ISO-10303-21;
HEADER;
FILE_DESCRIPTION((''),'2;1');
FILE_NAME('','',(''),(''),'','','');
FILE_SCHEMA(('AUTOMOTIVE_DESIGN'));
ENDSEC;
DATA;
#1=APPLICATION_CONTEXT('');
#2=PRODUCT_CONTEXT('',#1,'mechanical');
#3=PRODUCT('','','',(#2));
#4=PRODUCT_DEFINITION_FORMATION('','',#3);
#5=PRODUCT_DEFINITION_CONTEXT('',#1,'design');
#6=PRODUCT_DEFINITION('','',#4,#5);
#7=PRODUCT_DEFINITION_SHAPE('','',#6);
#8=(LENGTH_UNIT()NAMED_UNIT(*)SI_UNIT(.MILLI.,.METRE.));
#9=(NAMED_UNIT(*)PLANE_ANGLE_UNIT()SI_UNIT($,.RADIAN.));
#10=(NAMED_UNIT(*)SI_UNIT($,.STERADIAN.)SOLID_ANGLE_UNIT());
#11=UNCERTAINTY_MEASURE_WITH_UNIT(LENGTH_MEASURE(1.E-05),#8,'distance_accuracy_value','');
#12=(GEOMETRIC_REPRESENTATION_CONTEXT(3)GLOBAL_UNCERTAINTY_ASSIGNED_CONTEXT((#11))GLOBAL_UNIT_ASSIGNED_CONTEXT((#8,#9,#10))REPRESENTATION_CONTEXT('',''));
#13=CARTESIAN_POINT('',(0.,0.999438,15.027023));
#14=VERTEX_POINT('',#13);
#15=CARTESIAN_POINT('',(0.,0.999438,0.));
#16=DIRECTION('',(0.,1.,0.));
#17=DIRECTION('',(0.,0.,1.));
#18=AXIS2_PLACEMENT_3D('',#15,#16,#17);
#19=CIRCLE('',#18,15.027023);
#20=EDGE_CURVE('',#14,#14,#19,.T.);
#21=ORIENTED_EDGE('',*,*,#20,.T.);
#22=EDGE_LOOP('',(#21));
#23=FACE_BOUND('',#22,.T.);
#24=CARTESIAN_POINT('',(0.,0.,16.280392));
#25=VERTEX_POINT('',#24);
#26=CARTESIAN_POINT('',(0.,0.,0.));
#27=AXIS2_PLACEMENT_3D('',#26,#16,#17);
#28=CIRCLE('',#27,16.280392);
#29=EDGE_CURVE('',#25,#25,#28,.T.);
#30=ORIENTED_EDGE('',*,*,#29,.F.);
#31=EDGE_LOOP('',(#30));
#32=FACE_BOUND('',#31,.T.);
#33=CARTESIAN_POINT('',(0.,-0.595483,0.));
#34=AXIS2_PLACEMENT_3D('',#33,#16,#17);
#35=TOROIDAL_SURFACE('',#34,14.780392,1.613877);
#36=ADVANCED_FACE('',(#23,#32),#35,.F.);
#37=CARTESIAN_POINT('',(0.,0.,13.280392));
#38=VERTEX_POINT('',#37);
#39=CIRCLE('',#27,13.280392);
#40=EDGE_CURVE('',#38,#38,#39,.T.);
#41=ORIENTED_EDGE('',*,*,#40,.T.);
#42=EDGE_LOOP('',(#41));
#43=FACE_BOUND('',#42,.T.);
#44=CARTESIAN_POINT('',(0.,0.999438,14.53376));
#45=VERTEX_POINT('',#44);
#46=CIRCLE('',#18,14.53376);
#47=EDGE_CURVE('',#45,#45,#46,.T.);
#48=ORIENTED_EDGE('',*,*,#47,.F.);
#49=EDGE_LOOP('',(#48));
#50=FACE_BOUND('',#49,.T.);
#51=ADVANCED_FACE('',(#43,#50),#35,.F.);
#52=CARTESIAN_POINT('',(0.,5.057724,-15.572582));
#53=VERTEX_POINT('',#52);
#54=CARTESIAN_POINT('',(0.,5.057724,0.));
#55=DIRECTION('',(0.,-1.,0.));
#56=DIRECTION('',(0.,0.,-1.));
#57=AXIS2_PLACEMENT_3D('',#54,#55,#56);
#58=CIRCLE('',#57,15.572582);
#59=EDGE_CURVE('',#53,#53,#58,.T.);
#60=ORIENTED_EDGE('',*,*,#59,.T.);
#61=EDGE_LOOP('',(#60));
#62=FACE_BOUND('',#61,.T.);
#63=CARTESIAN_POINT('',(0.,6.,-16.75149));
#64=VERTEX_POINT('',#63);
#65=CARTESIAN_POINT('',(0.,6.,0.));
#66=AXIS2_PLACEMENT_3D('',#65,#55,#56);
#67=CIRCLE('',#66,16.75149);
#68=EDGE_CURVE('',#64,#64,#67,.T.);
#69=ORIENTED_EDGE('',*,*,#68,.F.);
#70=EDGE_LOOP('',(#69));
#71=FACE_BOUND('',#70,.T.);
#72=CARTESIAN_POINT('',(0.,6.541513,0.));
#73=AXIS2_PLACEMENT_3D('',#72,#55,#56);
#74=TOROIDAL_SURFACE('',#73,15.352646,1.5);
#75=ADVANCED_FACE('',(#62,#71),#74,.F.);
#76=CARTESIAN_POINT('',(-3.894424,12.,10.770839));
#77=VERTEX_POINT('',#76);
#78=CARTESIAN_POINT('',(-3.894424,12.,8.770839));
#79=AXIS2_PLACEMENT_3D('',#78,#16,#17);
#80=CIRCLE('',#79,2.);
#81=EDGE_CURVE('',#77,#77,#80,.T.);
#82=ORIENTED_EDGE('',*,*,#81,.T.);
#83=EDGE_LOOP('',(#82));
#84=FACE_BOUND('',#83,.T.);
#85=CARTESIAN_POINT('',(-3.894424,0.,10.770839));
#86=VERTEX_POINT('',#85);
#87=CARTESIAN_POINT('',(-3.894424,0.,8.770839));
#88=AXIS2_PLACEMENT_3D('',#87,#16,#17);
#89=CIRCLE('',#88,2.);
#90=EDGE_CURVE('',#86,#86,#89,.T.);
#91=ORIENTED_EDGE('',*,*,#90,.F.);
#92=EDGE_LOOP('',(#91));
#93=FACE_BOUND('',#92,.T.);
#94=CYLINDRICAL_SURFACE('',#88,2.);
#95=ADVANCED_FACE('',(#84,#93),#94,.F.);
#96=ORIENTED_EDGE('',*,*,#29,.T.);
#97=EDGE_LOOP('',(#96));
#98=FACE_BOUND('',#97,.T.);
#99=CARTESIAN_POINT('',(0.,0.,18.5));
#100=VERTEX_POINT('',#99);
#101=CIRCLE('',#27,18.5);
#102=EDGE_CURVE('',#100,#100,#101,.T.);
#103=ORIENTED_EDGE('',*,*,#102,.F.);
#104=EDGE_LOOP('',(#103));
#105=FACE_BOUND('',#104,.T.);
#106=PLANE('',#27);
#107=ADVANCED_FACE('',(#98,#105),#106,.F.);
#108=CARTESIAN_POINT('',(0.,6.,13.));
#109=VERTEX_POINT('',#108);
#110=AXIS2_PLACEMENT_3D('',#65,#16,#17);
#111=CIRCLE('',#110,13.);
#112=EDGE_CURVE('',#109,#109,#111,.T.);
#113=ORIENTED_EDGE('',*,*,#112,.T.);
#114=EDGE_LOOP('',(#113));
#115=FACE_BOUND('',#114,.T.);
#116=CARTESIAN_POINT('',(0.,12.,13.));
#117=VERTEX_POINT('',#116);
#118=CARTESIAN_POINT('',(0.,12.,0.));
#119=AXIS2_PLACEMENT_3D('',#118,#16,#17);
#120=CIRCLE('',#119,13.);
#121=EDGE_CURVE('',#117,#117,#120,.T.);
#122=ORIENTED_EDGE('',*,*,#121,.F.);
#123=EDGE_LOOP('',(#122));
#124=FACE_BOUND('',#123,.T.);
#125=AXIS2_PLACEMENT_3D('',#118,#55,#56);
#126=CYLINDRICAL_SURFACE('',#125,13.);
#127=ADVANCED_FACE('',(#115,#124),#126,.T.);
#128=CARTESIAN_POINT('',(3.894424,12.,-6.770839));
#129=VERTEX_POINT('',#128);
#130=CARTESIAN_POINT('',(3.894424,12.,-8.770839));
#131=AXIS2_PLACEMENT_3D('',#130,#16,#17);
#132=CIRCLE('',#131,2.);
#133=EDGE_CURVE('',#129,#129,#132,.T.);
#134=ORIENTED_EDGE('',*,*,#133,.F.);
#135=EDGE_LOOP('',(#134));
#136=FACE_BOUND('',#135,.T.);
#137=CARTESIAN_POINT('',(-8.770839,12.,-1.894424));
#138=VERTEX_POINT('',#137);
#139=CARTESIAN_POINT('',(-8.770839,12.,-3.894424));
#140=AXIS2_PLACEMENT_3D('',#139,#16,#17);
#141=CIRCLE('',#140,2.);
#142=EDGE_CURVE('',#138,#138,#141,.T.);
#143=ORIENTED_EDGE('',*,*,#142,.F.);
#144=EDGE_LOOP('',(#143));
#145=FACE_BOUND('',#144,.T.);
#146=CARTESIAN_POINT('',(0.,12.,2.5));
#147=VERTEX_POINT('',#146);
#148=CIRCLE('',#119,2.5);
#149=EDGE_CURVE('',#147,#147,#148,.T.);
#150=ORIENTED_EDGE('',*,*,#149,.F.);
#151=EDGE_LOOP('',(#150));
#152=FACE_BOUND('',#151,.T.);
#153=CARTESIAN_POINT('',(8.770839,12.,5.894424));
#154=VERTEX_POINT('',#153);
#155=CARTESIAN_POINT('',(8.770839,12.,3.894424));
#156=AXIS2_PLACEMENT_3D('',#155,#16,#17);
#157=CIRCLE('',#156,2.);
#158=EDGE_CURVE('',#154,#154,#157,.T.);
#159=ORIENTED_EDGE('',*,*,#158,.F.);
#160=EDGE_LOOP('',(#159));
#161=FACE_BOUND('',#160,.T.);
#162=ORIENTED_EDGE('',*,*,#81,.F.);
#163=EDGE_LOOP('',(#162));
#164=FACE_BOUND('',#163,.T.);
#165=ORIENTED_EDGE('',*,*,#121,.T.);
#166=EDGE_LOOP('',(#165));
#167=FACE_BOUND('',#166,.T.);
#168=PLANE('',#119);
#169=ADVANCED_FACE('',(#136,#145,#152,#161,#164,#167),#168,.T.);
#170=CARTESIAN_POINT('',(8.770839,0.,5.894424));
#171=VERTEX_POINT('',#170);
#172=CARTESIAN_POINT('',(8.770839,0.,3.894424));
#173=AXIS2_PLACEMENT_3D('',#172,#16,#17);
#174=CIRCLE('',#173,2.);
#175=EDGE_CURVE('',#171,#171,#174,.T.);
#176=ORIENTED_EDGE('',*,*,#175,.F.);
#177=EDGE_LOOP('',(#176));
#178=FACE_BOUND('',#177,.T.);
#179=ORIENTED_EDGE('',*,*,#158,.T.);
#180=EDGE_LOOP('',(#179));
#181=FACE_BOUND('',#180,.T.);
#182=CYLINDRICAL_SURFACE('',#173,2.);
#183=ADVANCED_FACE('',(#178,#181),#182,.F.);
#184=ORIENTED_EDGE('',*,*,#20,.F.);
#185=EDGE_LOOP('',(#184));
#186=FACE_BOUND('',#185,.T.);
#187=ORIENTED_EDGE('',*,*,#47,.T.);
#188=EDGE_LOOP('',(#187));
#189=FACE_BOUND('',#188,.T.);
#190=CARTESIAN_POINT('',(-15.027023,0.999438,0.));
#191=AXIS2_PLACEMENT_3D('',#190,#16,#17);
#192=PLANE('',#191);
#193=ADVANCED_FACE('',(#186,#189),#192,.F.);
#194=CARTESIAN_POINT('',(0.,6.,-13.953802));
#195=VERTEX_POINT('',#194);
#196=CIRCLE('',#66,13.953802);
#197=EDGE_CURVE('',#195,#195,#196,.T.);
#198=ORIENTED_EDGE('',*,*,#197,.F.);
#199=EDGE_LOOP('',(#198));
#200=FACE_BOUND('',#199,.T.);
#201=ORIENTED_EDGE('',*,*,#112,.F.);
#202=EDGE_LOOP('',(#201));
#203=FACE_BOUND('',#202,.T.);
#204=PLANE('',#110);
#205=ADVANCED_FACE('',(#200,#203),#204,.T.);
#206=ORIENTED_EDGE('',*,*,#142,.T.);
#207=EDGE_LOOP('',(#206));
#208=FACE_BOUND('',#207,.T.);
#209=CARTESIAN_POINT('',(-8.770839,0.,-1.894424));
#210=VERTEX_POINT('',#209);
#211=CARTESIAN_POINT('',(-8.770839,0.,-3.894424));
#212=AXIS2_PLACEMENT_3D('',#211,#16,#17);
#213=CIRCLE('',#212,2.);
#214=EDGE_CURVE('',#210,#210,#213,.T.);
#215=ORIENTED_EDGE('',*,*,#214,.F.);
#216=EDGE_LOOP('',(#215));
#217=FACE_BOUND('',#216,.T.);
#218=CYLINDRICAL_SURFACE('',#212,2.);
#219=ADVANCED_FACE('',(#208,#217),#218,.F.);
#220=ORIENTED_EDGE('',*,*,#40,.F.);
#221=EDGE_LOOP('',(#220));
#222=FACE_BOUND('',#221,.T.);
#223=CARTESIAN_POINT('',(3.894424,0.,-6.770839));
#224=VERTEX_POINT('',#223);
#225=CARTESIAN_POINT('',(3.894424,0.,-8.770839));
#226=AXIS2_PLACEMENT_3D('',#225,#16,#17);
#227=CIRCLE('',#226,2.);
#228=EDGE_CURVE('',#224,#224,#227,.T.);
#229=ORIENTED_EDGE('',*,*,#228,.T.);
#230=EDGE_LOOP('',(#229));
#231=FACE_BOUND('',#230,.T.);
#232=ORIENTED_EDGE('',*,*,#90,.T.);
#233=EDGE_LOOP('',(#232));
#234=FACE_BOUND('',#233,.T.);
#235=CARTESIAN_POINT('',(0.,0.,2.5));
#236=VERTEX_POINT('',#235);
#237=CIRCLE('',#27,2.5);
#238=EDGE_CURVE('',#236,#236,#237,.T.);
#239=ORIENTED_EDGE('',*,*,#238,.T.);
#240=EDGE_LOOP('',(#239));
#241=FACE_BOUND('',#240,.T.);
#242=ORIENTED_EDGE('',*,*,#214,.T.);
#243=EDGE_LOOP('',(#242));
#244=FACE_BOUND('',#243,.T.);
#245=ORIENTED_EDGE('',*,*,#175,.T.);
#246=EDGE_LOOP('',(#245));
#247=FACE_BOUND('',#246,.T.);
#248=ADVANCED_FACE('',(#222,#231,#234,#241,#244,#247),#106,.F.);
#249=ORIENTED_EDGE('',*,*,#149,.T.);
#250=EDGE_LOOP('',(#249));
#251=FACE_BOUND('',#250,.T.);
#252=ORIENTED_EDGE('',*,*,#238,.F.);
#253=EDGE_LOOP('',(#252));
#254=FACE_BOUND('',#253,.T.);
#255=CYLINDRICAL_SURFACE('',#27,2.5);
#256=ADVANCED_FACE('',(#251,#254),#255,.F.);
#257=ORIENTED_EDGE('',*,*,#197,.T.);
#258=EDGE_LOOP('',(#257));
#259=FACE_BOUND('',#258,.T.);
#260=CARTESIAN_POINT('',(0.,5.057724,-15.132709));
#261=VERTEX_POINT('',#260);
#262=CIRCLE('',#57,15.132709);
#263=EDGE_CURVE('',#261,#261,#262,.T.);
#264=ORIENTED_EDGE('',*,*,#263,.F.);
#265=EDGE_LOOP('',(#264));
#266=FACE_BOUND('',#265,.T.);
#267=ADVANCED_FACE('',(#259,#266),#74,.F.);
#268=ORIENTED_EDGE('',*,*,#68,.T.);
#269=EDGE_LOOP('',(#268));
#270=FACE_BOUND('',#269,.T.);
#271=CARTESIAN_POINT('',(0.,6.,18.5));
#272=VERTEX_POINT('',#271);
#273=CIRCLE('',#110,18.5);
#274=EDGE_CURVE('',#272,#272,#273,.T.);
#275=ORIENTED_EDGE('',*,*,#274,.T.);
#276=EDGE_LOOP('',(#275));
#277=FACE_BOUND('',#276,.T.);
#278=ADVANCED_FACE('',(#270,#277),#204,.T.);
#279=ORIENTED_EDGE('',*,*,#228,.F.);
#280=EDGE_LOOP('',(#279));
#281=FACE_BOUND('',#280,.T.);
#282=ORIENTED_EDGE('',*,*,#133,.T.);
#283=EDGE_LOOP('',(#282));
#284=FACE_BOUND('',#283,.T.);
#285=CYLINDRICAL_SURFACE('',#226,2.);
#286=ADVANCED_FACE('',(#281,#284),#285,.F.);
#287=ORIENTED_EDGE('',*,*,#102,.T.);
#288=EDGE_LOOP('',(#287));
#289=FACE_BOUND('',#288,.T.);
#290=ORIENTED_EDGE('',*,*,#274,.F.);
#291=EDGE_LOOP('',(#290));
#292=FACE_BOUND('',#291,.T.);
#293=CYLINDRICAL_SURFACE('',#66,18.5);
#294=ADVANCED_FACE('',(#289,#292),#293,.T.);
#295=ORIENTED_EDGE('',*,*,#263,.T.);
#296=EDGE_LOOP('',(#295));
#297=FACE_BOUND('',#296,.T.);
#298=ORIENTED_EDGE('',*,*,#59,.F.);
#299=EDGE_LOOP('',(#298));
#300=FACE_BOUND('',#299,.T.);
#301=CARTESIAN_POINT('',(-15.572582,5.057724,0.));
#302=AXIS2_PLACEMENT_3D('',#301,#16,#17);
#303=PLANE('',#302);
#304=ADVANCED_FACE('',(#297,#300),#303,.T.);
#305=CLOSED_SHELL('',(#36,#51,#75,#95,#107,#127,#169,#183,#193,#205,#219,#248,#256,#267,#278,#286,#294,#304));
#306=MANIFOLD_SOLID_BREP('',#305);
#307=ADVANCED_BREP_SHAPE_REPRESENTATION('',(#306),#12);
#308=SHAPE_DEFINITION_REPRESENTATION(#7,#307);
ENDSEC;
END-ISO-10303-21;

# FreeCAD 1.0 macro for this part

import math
import FreeCAD as App
import Part
import Sketcher
from FreeCAD import Vector

doc = App.newDocument("Part")
params = doc.addObject("Spreadsheet::Sheet", "Params")
for row, (alias, value) in enumerate([
    ("sketch1_diameter", "37 mm"),
    ("pad1_length", "6 mm"),
    ("sketch2_width", "3 mm"),
    ("sketch4_radius", "1.5 mm"),
    ("sketch6_diameter", "26 mm"),
    ("pad2_length", "6 mm"),
    ("sketch7_diameter", "5 mm"),
    ("sketch7_diameter2", "4 mm"),
], start=1):
    params.set(f"A{row}", alias)
    params.set(f"B{row}", "=" + value)
    params.setAlias(f"B{row}", alias)

body = doc.addObject("PartDesign::Body", "Body")

# Sketch on XZ plane
sketch1 = body.newObject("Sketcher::SketchObject", "Sketch")
sketch1.AttachmentSupport = (doc.getObject("XZ_Plane"), [""])
sketch1.MapMode = "FlatFace"
sketch1.addGeometry(Part.Circle(Vector(0, 0, 0), Vector(0, 0, 1), 18), False)
sketch1.addConstraint([
    Sketcher.Constraint("Coincident", 0, 3, -1, 1),
    Sketcher.Constraint("Diameter", 0, 37.0),
])
sketch1.setExpression("Constraints[1]", "Params.sketch1_diameter")
pad1 = body.newObject("PartDesign::Pad", "Pad")
pad1.Profile = sketch1
pad1.setExpression("Length", "Params.pad1_length")
pad1.Reversed = True

# Sketch on XY plane
sketch2 = body.newObject("Sketcher::SketchObject", "Sketch001")
sketch2.AttachmentSupport = (doc.getObject("XY_Plane"), [""])
sketch2.MapMode = "FlatFace"
sketch2.addGeometry([
    Part.LineSegment(Vector(-16.28, 0, 0), Vector(-13.28, 0, 0)),
    Part.ArcOfCircle(Part.Circle(Vector(-14.78, -0.6, 0), Vector(0, 0, 1), 1.61), math.radians(22), math.radians(81)),
    Part.LineSegment(Vector(-14.53, 1, 0), Vector(-15.03, 1, 0)),
    Part.ArcOfCircle(Part.Circle(Vector(-14.78, -0.6, 0), Vector(0, 0, 1), 1.61), math.radians(99), math.radians(158)),
], False)
sketch2.addConstraint([
    Sketcher.Constraint("Coincident", 0, 2, 1, 1),
    Sketcher.Constraint("Coincident", 1, 2, 2, 1),
    Sketcher.Constraint("Coincident", 2, 2, 3, 1),
    Sketcher.Constraint("Coincident", 3, 2, 0, 1),
    Sketcher.Constraint("Horizontal", 0),
    Sketcher.Constraint("Horizontal", 2),
    Sketcher.Constraint("Coincident", 3, 3, 1, 3),
    Sketcher.Constraint("Equal", 1, 3),
    Sketcher.Constraint("PointOnObject", 0, 2, -1),
    Sketcher.Constraint("DistanceX", 0, 1, 0, 2, 3.0),
    Sketcher.Constraint("Radius", 1, 1.613877),
    Sketcher.Constraint("DistanceX", 2, 2, 2, 1, 0.493263),
    Sketcher.Constraint("DistanceX", 1, 3, -1, 1, 14.780392),
])
sketch2.setExpression("Constraints[9]", "Params.sketch2_width")

# Sketch on XZ plane
sketch3 = body.newObject("Sketcher::SketchObject", "Sketch002")
sketch3.AttachmentSupport = (doc.getObject("XZ_Plane"), [""])
sketch3.MapMode = "FlatFace"
sketch3.addGeometry(Part.Circle(Vector(0, 0, 0), Vector(0, 0, 1), 15), False)
sketch3.addConstraint([
    Sketcher.Constraint("Coincident", 0, 3, -1, 1),
    Sketcher.Constraint("Diameter", 0, 29.560783),
])
doc.recompute()

subtractivepipe = body.newObject("PartDesign::SubtractivePipe", "SubtractivePipe")
subtractivepipe.Profile = sketch2
subtractivepipe.Spine = (sketch3, ["Edge1"])

# Sketch on XY plane
sketch4 = body.newObject("Sketcher::SketchObject", "Sketch003")
sketch4.AttachmentSupport = (doc.getObject("XY_Plane"), [""])
sketch4.MapMode = "FlatFace"
sketch4.addGeometry([
    Part.LineSegment(Vector(-13.95, 6, 0), Vector(-16.75, 6, 0)),
    Part.ArcOfCircle(Part.Circle(Vector(-15.35, 6.54, 0), Vector(0, 0, 1), 1.5), math.radians(-159), math.radians(-98)),
    Part.LineSegment(Vector(-15.57, 5.06, 0), Vector(-15.13, 5.06, 0)),
    Part.ArcOfCircle(Part.Circle(Vector(-15.35, 6.54, 0), Vector(0, 0, 1), 1.5), math.radians(-82), math.radians(-21)),
], False)
sketch4.addConstraint([
    Sketcher.Constraint("Coincident", 0, 2, 1, 1),
    Sketcher.Constraint("Coincident", 1, 2, 2, 1),
    Sketcher.Constraint("Coincident", 2, 2, 3, 1),
    Sketcher.Constraint("Coincident", 3, 2, 0, 1),
    Sketcher.Constraint("Horizontal", 0),
    Sketcher.Constraint("Horizontal", 2),
    Sketcher.Constraint("Coincident", 3, 3, 1, 3),
    Sketcher.Constraint("Equal", 1, 3),
    Sketcher.Constraint("Radius", 1, 1.5),
    Sketcher.Constraint("DistanceY", -1, 1, 0, 2, 6.0),
    Sketcher.Constraint("DistanceX", 0, 2, 0, 1, 2.797688),
    Sketcher.Constraint("DistanceX", 2, 1, 2, 2, 0.439873),
    Sketcher.Constraint("DistanceX", 0, 2, -1, 1, 16.75149),
])
sketch4.setExpression("Constraints[8]", "Params.sketch4_radius")

# Sketch on XZ plane
sketch5 = body.newObject("Sketcher::SketchObject", "Sketch004")
sketch5.AttachmentSupport = (doc.getObject("XZ_Plane"), [""])
sketch5.MapMode = "FlatFace"
sketch5.AttachmentOffset = App.Placement(Vector(0, 0, -6), App.Rotation())
sketch5.addGeometry(Part.Circle(Vector(0, 0, 0), Vector(0, 0, 1), 15), False)
sketch5.addConstraint([
    Sketcher.Constraint("Coincident", 0, 3, -1, 1),
    Sketcher.Constraint("Diameter", 0, 30.705292),
])
doc.recompute()

subtractivepipe2 = body.newObject("PartDesign::SubtractivePipe", "SubtractivePipe001")
subtractivepipe2.Profile = sketch4
subtractivepipe2.Spine = (sketch5, ["Edge1"])

# Sketch on XZ plane
sketch6 = body.newObject("Sketcher::SketchObject", "Sketch005")
sketch6.AttachmentSupport = (doc.getObject("XZ_Plane"), [""])
sketch6.MapMode = "FlatFace"
sketch6.AttachmentOffset = App.Placement(Vector(0, 0, -6), App.Rotation())
sketch6.addGeometry(Part.Circle(Vector(0, 0, 0), Vector(0, 0, 1), 13), False)
sketch6.addConstraint([
    Sketcher.Constraint("Coincident", 0, 3, -1, 1),
    Sketcher.Constraint("Diameter", 0, 26.0),
])
sketch6.setExpression("Constraints[1]", "Params.sketch6_diameter")
pad2 = body.newObject("PartDesign::Pad", "Pad001")
pad2.Profile = sketch6
pad2.setExpression("Length", "Params.pad2_length")
pad2.Reversed = True

# Sketch on XZ plane
sketch7 = body.newObject("Sketcher::SketchObject", "Sketch006")
sketch7.AttachmentSupport = (doc.getObject("XZ_Plane"), [""])
sketch7.MapMode = "FlatFace"
sketch7.AttachmentOffset = App.Placement(Vector(0, 0, -12), App.Rotation())
sketch7.addGeometry([
    Part.Circle(Vector(0, 0, 0), Vector(0, 0, 1), 2.5),  # 0
    Part.Circle(Vector(-3.9, 8.8, 0), Vector(0, 0, 1), 2),  # 1
    Part.Circle(Vector(8.8, 3.9, 0), Vector(0, 0, 1), 2),  # 2
    Part.Circle(Vector(3.9, -8.8, 0), Vector(0, 0, 1), 2),  # 3
    Part.Circle(Vector(-8.8, -3.9, 0), Vector(0, 0, 1), 2),  # 4
], False)
sketch7.addConstraint([
    Sketcher.Constraint("Coincident", 0, 3, -1, 1),
    Sketcher.Constraint("Equal", 1, 2),
    Sketcher.Constraint("Equal", 2, 3),
    Sketcher.Constraint("Equal", 3, 4),
    Sketcher.Constraint("Symmetric", 1, 3, 3, 3, -1, 1),
    Sketcher.Constraint("Symmetric", 2, 3, 4, 3, -1, 1),
    Sketcher.Constraint("Diameter", 0, 5.0),
    Sketcher.Constraint("Diameter", 1, 4.0),
    Sketcher.Constraint("DistanceY", -1, 1, 1, 3, 8.770839),
    Sketcher.Constraint("DistanceX", -1, 1, 2, 3, 8.770839),
    Sketcher.Constraint("DistanceX", 1, 3, 3, 3, 7.788849),
    Sketcher.Constraint("DistanceY", 4, 3, 2, 3, 7.788849),
])
sketch7.setExpression("Constraints[6]", "Params.sketch7_diameter")
sketch7.setExpression("Constraints[7]", "Params.sketch7_diameter2")
pocket1 = body.newObject("PartDesign::Pocket", "Pocket")
pocket1.Profile = sketch7
pocket1.Type = "ThroughAll"
pocket1.Reversed = True

doc.recompute()
